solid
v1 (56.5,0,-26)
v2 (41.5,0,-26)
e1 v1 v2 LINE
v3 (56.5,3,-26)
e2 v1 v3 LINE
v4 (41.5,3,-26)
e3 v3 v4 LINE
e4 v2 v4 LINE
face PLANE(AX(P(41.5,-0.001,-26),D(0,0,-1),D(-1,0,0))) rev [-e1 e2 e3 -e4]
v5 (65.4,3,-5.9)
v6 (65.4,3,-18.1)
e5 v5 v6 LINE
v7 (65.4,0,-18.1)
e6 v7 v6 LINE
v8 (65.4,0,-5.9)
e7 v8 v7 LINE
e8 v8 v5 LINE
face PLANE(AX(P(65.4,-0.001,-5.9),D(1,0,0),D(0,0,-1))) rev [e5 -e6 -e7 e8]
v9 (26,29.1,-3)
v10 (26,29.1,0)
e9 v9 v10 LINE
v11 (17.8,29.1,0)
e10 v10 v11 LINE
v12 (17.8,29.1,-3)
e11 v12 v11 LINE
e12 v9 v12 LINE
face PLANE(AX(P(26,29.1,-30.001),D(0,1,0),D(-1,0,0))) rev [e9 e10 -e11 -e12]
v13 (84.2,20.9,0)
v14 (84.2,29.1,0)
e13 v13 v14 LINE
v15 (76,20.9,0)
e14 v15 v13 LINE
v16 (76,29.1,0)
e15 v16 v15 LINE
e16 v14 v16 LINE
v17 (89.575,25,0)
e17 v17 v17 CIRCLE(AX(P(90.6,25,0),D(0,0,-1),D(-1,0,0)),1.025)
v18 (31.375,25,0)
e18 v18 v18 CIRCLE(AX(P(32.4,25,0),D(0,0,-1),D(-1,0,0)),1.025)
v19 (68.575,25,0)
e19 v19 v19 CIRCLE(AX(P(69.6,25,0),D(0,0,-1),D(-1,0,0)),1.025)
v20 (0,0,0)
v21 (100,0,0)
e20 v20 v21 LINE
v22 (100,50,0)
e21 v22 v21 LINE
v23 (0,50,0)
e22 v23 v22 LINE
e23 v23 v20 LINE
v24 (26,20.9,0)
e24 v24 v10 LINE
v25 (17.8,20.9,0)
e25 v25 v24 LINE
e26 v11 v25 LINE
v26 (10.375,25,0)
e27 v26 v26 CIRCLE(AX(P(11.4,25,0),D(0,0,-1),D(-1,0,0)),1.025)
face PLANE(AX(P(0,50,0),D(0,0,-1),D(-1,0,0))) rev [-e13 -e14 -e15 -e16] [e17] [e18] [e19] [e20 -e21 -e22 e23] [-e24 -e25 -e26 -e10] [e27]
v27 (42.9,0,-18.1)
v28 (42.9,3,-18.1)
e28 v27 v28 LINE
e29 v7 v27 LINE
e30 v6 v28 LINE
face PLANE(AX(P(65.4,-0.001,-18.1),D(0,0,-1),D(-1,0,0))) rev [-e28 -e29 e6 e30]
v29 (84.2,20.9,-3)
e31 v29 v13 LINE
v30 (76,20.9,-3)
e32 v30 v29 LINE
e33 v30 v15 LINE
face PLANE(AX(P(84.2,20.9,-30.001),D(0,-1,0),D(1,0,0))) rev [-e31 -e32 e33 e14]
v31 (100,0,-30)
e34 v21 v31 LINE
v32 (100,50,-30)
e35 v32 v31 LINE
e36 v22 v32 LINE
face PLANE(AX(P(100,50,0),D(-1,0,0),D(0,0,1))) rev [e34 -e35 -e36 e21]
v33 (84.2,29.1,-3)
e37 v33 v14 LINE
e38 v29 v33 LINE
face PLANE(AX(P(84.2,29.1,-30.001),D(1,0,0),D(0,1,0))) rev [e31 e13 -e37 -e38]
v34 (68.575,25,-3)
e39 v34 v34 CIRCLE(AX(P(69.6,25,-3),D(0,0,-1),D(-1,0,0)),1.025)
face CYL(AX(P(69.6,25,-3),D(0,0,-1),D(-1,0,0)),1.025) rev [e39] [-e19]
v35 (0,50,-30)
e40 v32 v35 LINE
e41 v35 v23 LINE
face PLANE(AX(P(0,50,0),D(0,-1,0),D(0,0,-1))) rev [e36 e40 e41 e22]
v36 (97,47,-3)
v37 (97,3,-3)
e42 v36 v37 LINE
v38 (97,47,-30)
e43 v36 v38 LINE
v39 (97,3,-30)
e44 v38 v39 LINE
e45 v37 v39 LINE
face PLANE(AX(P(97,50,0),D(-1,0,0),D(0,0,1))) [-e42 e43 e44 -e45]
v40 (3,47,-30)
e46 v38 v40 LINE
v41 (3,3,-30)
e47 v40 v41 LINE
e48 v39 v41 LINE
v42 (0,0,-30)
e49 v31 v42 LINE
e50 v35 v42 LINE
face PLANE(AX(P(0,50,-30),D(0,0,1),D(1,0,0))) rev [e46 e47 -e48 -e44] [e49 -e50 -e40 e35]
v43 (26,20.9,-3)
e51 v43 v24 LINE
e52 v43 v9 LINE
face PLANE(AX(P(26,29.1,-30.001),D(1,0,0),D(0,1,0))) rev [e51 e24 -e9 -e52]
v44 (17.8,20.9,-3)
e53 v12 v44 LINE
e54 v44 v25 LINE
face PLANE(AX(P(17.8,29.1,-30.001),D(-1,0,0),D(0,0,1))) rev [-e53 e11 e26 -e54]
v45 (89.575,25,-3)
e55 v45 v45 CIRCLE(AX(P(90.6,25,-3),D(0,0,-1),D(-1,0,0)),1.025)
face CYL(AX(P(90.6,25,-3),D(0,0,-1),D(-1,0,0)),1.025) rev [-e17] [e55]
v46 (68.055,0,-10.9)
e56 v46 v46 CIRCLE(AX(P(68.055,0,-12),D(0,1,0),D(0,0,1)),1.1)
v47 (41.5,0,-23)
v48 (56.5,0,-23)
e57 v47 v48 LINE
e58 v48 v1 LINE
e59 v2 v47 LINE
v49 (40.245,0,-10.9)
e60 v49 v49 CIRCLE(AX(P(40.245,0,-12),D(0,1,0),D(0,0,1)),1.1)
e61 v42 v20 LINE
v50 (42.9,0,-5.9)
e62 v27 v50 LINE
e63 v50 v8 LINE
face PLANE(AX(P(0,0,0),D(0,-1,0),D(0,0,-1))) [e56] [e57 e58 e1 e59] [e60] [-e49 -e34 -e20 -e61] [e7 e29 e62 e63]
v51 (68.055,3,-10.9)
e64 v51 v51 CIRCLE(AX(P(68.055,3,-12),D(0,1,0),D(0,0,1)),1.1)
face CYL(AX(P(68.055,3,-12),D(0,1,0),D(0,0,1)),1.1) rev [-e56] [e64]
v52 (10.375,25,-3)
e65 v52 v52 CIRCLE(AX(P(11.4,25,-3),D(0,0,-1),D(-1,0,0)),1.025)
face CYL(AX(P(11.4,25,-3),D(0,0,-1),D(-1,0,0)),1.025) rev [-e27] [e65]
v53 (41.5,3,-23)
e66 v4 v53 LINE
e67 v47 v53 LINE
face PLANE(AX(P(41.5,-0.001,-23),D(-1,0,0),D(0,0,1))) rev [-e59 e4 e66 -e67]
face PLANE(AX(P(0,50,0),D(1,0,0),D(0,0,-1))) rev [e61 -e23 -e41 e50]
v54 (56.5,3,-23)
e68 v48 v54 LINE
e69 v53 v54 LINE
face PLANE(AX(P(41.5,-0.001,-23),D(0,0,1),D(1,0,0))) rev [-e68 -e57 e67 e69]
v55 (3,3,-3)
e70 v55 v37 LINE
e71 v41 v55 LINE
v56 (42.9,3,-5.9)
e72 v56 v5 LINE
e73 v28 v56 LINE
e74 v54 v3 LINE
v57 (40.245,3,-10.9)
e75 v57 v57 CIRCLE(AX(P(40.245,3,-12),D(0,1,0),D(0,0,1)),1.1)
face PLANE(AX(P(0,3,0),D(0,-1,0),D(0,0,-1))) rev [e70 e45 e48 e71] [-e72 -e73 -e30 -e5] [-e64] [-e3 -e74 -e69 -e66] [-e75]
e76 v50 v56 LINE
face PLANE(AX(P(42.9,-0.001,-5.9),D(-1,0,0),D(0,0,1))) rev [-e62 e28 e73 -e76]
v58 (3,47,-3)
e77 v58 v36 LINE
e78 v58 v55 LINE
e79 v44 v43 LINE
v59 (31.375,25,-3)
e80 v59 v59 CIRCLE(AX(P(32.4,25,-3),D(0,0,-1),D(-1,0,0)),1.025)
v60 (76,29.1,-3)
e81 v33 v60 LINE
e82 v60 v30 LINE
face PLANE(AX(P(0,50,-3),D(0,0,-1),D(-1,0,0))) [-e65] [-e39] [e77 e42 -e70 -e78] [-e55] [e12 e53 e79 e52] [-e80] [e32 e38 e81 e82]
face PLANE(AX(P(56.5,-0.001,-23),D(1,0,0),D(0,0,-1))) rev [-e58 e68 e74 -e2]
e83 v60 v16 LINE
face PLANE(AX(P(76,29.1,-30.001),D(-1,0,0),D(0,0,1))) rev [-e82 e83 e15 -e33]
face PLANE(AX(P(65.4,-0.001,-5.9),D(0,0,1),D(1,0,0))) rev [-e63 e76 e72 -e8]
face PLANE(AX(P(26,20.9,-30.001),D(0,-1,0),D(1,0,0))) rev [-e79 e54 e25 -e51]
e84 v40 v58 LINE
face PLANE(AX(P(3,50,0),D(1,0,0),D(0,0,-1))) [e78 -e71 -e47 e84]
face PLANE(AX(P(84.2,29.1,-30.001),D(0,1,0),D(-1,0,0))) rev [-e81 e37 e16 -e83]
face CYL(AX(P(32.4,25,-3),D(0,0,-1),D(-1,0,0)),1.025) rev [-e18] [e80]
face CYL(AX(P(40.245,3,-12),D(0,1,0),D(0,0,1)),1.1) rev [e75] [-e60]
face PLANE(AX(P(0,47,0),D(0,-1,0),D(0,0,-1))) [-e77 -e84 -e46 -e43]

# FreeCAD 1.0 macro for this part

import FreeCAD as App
import Part
import Sketcher
Q = App.Units.Quantity


def faces_at(feature, points):
    """Names of the faces that lie closest to the given points."""
    faces = feature.Shape.Faces
    near = lambda p: min(range(len(faces)), key=lambda i: faces[i].distToShape(Part.Vertex(*p))[0])
    return sorted({f"Face{near(p) + 1}" for p in points})

doc = App.newDocument("Part")
body = doc.addObject("PartDesign::Body", "Body")

# Sketch on XZ plane
sketch1 = body.newObject("Sketcher::SketchObject", "Sketch")
sketch1.AttachmentSupport = (doc.getObject("XZ_Plane"), [""])
sketch1.MapMode = "FlatFace"
sketch1.addGeometry([
    Part.LineSegment(App.Vector(0, -30, 0), App.Vector(0, 0, 0)),
    Part.LineSegment(App.Vector(0, 0, 0), App.Vector(100, 0, 0)),
    Part.LineSegment(App.Vector(100, 0, 0), App.Vector(100, -30, 0)),
    Part.LineSegment(App.Vector(100, -30, 0), App.Vector(0, -30, 0)),
], False)
sketch1.addConstraint([
    Sketcher.Constraint("Coincident", 0, 2, 1, 1),
    Sketcher.Constraint("Coincident", 1, 2, 2, 1),
    Sketcher.Constraint("Coincident", 2, 2, 3, 1),
    Sketcher.Constraint("Coincident", 3, 2, 0, 1),
    Sketcher.Constraint("Vertical", 0),
    Sketcher.Constraint("Horizontal", 1),
    Sketcher.Constraint("Vertical", 2),
    Sketcher.Constraint("Horizontal", 3),
    Sketcher.Constraint("Coincident", 0, 2, -1, 1),
    Sketcher.Constraint("DistanceX", 1, 1, 1, 2, Q("100 mm")),
    Sketcher.Constraint("DistanceY", 0, 1, 0, 2, Q("30 mm")),
])
pad1 = body.newObject("PartDesign::Pad", "Pad")
pad1.Profile = sketch1
pad1.Length = 50
pad1.Reversed = True
doc.recompute()

thickness = body.newObject("PartDesign::Thickness", "Thickness")
thickness.Base = (pad1, faces_at(pad1, [(50, 25, -30)]))
thickness.Value = 3
thickness.Reversed = True
thickness.Join = "Intersection"

# Sketch on XZ plane
sketch2 = body.newObject("Sketcher::SketchObject", "Sketch001")
sketch2.AttachmentSupport = (doc.getObject("XZ_Plane"), [""])
sketch2.MapMode = "FlatFace"
sketch2.AttachmentOffset = App.Placement(App.Vector(0, 0, -3), App.Rotation())
sketch2.addGeometry([
    Part.LineSegment(App.Vector(43, -18, 0), App.Vector(43, -6, 0)),
    Part.LineSegment(App.Vector(43, -6, 0), App.Vector(65, -6, 0)),
    Part.LineSegment(App.Vector(65, -6, 0), App.Vector(65, -18, 0)),
    Part.LineSegment(App.Vector(65, -18, 0), App.Vector(43, -18, 0)),
], False)
sketch2.addConstraint([
    Sketcher.Constraint("Coincident", 0, 2, 1, 1),
    Sketcher.Constraint("Coincident", 1, 2, 2, 1),
    Sketcher.Constraint("Coincident", 2, 2, 3, 1),
    Sketcher.Constraint("Coincident", 3, 2, 0, 1),
    Sketcher.Constraint("Vertical", 0),
    Sketcher.Constraint("Horizontal", 1),
    Sketcher.Constraint("Vertical", 2),
    Sketcher.Constraint("Horizontal", 3),
    Sketcher.Constraint("DistanceX", 1, 1, 1, 2, Q("22.5 mm")),
    Sketcher.Constraint("DistanceY", 0, 1, 0, 2, Q("12.2 mm")),
    Sketcher.Constraint("DistanceX", -1, 1, 0, 2, Q("42.9 mm")),
    Sketcher.Constraint("DistanceY", 0, 2, -1, 1, Q("5.9 mm")),
])
pocket1 = body.newObject("PartDesign::Pocket", "Pocket")
pocket1.Profile = sketch2
pocket1.Type = "UpToFirst"
pocket1.Reversed = True

# Sketch on XZ plane
sketch3 = body.newObject("Sketcher::SketchObject", "Sketch002")
sketch3.AttachmentSupport = (doc.getObject("XZ_Plane"), [""])
sketch3.MapMode = "FlatFace"
sketch3.AttachmentOffset = App.Placement(App.Vector(0, 0, -3), App.Rotation())
sketch3.addGeometry([
    Part.Circle(App.Vector(68.1, -12, 0), App.Vector(0, 0, 1), 1.1),
    Part.Circle(App.Vector(40.2, -12, 0), App.Vector(0, 0, 1), 1.1),
], False)
sketch3.addConstraint([
    Sketcher.Constraint("Equal", 0, 1),
    Sketcher.Constraint("Horizontal", 0, 3, 1, 3),
    Sketcher.Constraint("Diameter", 0, Q("2.2 mm")),
    Sketcher.Constraint("DistanceY", 0, 3, -1, 1, Q("12 mm")),
    Sketcher.Constraint("DistanceX", 1, 3, 0, 3, Q("27.81 mm")),
    Sketcher.Constraint("DistanceX", -1, 1, 0, 3, Q("68.055 mm")),
])
doc.recompute()
hole = body.newObject("PartDesign::Hole", "Hole")
hole.Profile = sketch3
hole.ThreadType = "None"
hole.Diameter = 2.2
hole.DepthType = "Dimension"
hole.Depth = 3
hole.DrillPoint = "Flat"
hole.Reversed = True

# Sketch on XZ plane
sketch4 = body.newObject("Sketcher::SketchObject", "Sketch003")
sketch4.AttachmentSupport = (doc.getObject("XZ_Plane"), [""])
sketch4.MapMode = "FlatFace"
sketch4.AttachmentOffset = App.Placement(App.Vector(0, 0, -3), App.Rotation())
sketch4.addGeometry([
    Part.LineSegment(App.Vector(41.5, -26, 0), App.Vector(41.5, -23, 0)),
    Part.LineSegment(App.Vector(41.5, -23, 0), App.Vector(56.5, -23, 0)),
    Part.LineSegment(App.Vector(56.5, -23, 0), App.Vector(56.5, -26, 0)),
    Part.LineSegment(App.Vector(56.5, -26, 0), App.Vector(41.5, -26, 0)),
], False)
sketch4.addConstraint([
    Sketcher.Constraint("Coincident", 0, 2, 1, 1),
    Sketcher.Constraint("Coincident", 1, 2, 2, 1),
    Sketcher.Constraint("Coincident", 2, 2, 3, 1),
    Sketcher.Constraint("Coincident", 3, 2, 0, 1),
    Sketcher.Constraint("Vertical", 0),
    Sketcher.Constraint("Horizontal", 1),
    Sketcher.Constraint("Vertical", 2),
    Sketcher.Constraint("Horizontal", 3),
    Sketcher.Constraint("DistanceX", 1, 1, 1, 2, Q("15 mm")),
    Sketcher.Constraint("DistanceY", 0, 1, 0, 2, Q("3 mm")),
    Sketcher.Constraint("DistanceY", 0, 2, -1, 1, Q("23 mm")),
    Sketcher.Constraint("DistanceX", -1, 1, 0, 2, Q("41.5 mm")),
])
pocket2 = body.newObject("PartDesign::Pocket", "Pocket001")
pocket2.Profile = sketch4
pocket2.Type = "UpToFirst"
pocket2.Reversed = True

# Sketch on XY plane
sketch5 = body.newObject("Sketcher::SketchObject", "Sketch004")
sketch5.AttachmentSupport = (doc.getObject("XY_Plane"), [""])
sketch5.MapMode = "FlatFace"
sketch5.addGeometry([
    Part.LineSegment(App.Vector(76, 29, 0), App.Vector(76, 21, 0)),
    Part.LineSegment(App.Vector(76, 21, 0), App.Vector(84, 21, 0)),
    Part.LineSegment(App.Vector(84, 21, 0), App.Vector(84, 29, 0)),
    Part.LineSegment(App.Vector(84, 29, 0), App.Vector(76, 29, 0)),
], False)
sketch5.addConstraint([
    Sketcher.Constraint("Coincident", 0, 2, 1, 1),
    Sketcher.Constraint("Coincident", 1, 2, 2, 1),
    Sketcher.Constraint("Coincident", 2, 2, 3, 1),
    Sketcher.Constraint("Coincident", 3, 2, 0, 1),
    Sketcher.Constraint("Vertical", 0),
    Sketcher.Constraint("Horizontal", 1),
    Sketcher.Constraint("Vertical", 2),
    Sketcher.Constraint("Horizontal", 3),
    Sketcher.Constraint("Equal", 3, 0),
    Sketcher.Constraint("DistanceX", 1, 1, 1, 2, Q("8.2 mm")),
    Sketcher.Constraint("DistanceX", -1, 1, 0, 2, Q("76 mm")),
    Sketcher.Constraint("DistanceY", -1, 1, 0, 2, Q("20.9 mm")),
])
pocket3 = body.newObject("PartDesign::Pocket", "Pocket002")
pocket3.Profile = sketch5
pocket3.Type = "UpToFirst"

# Sketch on XY plane
sketch6 = body.newObject("Sketcher::SketchObject", "Sketch005")
sketch6.AttachmentSupport = (doc.getObject("XY_Plane"), [""])
sketch6.MapMode = "FlatFace"
sketch6.addGeometry([
    Part.LineSegment(App.Vector(18, 29, 0), App.Vector(18, 21, 0)),
    Part.LineSegment(App.Vector(18, 21, 0), App.Vector(26, 21, 0)),
    Part.LineSegment(App.Vector(26, 21, 0), App.Vector(26, 29, 0)),
    Part.LineSegment(App.Vector(26, 29, 0), App.Vector(18, 29, 0)),
], False)
sketch6.addConstraint([
    Sketcher.Constraint("Coincident", 0, 2, 1, 1),
    Sketcher.Constraint("Coincident", 1, 2, 2, 1),
    Sketcher.Constraint("Coincident", 2, 2, 3, 1),
    Sketcher.Constraint("Coincident", 3, 2, 0, 1),
    Sketcher.Constraint("Vertical", 0),
    Sketcher.Constraint("Horizontal", 1),
    Sketcher.Constraint("Vertical", 2),
    Sketcher.Constraint("Horizontal", 3),
    Sketcher.Constraint("Equal", 3, 0),
    Sketcher.Constraint("DistanceX", 1, 1, 1, 2, Q("8.2 mm")),
    Sketcher.Constraint("DistanceX", -1, 1, 1, 2, Q("26 mm")),
    Sketcher.Constraint("DistanceY", -1, 1, 0, 2, Q("20.9 mm")),
])
pocket4 = body.newObject("PartDesign::Pocket", "Pocket003")
pocket4.Profile = sketch6
pocket4.Type = "UpToFirst"

# Sketch on XY plane
sketch7 = body.newObject("Sketcher::SketchObject", "Sketch006")
sketch7.AttachmentSupport = (doc.getObject("XY_Plane"), [""])
sketch7.MapMode = "FlatFace"
sketch7.AttachmentOffset = App.Placement(App.Vector(0, 0, -3), App.Rotation())
sketch7.addGeometry([
    Part.Circle(App.Vector(90.6, 25, 0), App.Vector(0, 0, 1), 1),
    Part.Circle(App.Vector(69.6, 25, 0), App.Vector(0, 0, 1), 1),
    Part.Circle(App.Vector(32.4, 25, 0), App.Vector(0, 0, 1), 1),
    Part.Circle(App.Vector(11.4, 25, 0), App.Vector(0, 0, 1), 1),
], False)
sketch7.addConstraint([
    Sketcher.Constraint("Equal", 0, 1),
    Sketcher.Constraint("Equal", 1, 2),
    Sketcher.Constraint("Equal", 2, 3),
    Sketcher.Constraint("Horizontal", 0, 3, 1, 3),
    Sketcher.Constraint("Horizontal", 1, 3, 2, 3),
    Sketcher.Constraint("Horizontal", 2, 3, 3, 3),
    Sketcher.Constraint("Diameter", 0, Q("2.05 mm")),
    Sketcher.Constraint("DistanceY", -1, 1, 0, 3, Q("25 mm")),
    Sketcher.Constraint("DistanceX", 1, 3, 0, 3, Q("21 mm")),
    Sketcher.Constraint("DistanceX", 3, 3, 2, 3, Q("21 mm")),
    Sketcher.Constraint("DistanceX", -1, 1, 0, 3, Q("90.6 mm")),
    Sketcher.Constraint("DistanceX", -1, 1, 2, 3, Q("32.4 mm")),
])
doc.recompute()
hole2 = body.newObject("PartDesign::Hole", "Hole001")
hole2.Profile = sketch7
hole2.ThreadType = "None"
hole2.Diameter = 2.05
hole2.DepthType = "ThroughAll"
hole2.Reversed = True

doc.recompute()
